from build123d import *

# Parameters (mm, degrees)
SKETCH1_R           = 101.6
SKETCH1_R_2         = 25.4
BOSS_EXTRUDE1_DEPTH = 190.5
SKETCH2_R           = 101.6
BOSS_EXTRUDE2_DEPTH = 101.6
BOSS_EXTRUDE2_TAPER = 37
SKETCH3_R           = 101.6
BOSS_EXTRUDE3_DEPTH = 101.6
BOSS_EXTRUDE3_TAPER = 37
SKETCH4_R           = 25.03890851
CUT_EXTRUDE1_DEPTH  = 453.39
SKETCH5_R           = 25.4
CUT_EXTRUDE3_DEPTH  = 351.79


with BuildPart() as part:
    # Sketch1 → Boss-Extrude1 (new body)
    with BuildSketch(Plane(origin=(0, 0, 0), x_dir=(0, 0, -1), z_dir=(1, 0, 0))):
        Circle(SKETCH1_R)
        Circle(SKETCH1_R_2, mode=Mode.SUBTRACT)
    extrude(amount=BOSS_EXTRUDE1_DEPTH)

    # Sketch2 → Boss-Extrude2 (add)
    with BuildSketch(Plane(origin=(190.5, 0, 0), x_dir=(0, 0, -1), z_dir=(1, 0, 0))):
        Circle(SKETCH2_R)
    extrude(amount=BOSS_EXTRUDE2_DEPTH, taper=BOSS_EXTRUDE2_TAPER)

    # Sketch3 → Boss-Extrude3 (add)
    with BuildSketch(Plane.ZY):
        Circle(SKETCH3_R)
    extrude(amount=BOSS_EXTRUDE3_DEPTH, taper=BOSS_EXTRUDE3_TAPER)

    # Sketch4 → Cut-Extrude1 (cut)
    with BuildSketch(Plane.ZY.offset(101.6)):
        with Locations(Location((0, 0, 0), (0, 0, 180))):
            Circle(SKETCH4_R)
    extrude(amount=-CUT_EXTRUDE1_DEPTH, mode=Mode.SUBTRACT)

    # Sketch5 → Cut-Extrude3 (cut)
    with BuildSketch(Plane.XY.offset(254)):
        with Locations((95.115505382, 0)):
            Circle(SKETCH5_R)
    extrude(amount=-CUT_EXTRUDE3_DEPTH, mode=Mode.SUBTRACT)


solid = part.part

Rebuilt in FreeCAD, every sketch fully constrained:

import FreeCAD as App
import Part
import Sketcher

V = App.Vector
Q = App.Units.Quantity

doc = App.newDocument("Part")
body = doc.addObject("PartDesign::Body", "Body")

sketch1 = body.newObject("Sketcher::SketchObject", "Sketch")
sketch1.AttachmentSupport = (doc.getObject("YZ_Plane"), [""])
sketch1.MapMode = "FlatFace"
sketch1.addGeometry([
    Part.Circle(V(0, 0, 0), V(0, 0, 1), 101.6),
    Part.Circle(V(0, 0, 0), V(0, 0, 1), 25.4),
], False)
sketch1.addConstraint([
    Sketcher.Constraint("Coincident", 0, 3, -1, 1),
    Sketcher.Constraint("Coincident", 1, 3, -1, 1),
    Sketcher.Constraint("Diameter", 0, Q("8 in")),
    Sketcher.Constraint("Diameter", 1, Q("2 in")),
])
pad1 = body.newObject("PartDesign::Pad", "Pad")
pad1.Profile = sketch1
pad1.Length = Q("7.5 in")

sketch2 = body.newObject("Sketcher::SketchObject", "Sketch001")
sketch2.AttachmentSupport = (doc.getObject("YZ_Plane"), [""])
sketch2.MapMode = "FlatFace"
sketch2.AttachmentOffset = App.Placement(V(0, 0, 7.5 * 25.4), App.Rotation())
sketch2.addGeometry(Part.Circle(V(0, 0, 0), V(0, 0, 1), 101.6), False)
sketch2.addConstraint([
    Sketcher.Constraint("Coincident", 0, 3, -1, 1),
    Sketcher.Constraint("Diameter", 0, Q("8 in")),
])
pad2 = body.newObject("PartDesign::Pad", "Pad001")
pad2.Profile = sketch2
pad2.Length = Q("4 in")
pad2.TaperAngle = -37

sketch3 = body.newObject("Sketcher::SketchObject", "Sketch002")
sketch3.AttachmentSupport = (doc.getObject("YZ_Plane"), [""])
sketch3.MapMode = "FlatFace"
sketch3.addGeometry(Part.Circle(V(0, 0, 0), V(0, 0, 1), 101.6), False)
sketch3.addConstraint([
    Sketcher.Constraint("Coincident", 0, 3, -1, 1),
    Sketcher.Constraint("Diameter", 0, Q("8 in")),
])
pad3 = body.newObject("PartDesign::Pad", "Pad002")
pad3.Profile = sketch3
pad3.Length = Q("4 in")
pad3.Reversed = True
pad3.TaperAngle = -37

sketch4 = body.newObject("Sketcher::SketchObject", "Sketch003")
sketch4.AttachmentSupport = (doc.getObject("YZ_Plane"), [""])
sketch4.MapMode = "FlatFace"
sketch4.AttachmentOffset = App.Placement(V(0, 0, -4 * 25.4), App.Rotation())
sketch4.addGeometry(Part.Circle(V(0, 0, 0), V(0, 0, 1), 25.038909), False)
sketch4.addConstraint([
    Sketcher.Constraint("Coincident", 0, 3, -1, 1),
    Sketcher.Constraint("Diameter", 0, 50.077817),
])
pocket1 = body.newObject("PartDesign::Pocket", "Pocket")
pocket1.Profile = sketch4
pocket1.Length = Q("17.85 in")
pocket1.Reversed = True

sketch5 = body.newObject("Sketcher::SketchObject", "Sketch004")
sketch5.AttachmentSupport = (doc.getObject("XY_Plane"), [""])
sketch5.MapMode = "FlatFace"
sketch5.AttachmentOffset = App.Placement(V(0, 0, 10 * 25.4), App.Rotation())
sketch5.addGeometry(Part.Circle(V(95.115505, 0, 0), V(0, 0, 1), 25.4), False)
sketch5.addConstraint([
    Sketcher.Constraint("PointOnObject", 0, 3, -1),
    Sketcher.Constraint("Diameter", 0, Q("2 in")),
    Sketcher.Constraint("DistanceX", -1, 1, 0, 3, 95.115505),
])
pocket2 = body.newObject("PartDesign::Pocket", "Pocket001")
pocket2.Profile = sketch5
pocket2.Length = Q("13.85 in")

doc.recompute()
